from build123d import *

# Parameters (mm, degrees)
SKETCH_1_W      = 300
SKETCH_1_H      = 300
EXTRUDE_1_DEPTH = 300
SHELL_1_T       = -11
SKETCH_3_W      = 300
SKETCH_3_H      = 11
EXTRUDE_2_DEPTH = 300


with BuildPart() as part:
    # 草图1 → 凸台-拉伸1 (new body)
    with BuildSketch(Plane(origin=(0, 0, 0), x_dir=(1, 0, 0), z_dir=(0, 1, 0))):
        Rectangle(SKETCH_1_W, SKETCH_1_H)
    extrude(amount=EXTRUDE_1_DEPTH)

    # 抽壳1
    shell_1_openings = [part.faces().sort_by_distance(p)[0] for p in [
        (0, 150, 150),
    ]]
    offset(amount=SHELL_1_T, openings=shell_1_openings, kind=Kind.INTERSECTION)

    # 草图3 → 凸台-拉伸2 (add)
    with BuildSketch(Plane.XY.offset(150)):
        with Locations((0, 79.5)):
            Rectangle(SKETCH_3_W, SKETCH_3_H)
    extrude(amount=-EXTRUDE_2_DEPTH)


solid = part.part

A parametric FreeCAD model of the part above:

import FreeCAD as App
import Part
import Sketcher


def faces_at(feature, points):
    """Names of the faces that lie closest to the given points."""
    faces = feature.Shape.Faces
    near = lambda p: min(range(len(faces)), key=lambda i: faces[i].distToShape(Part.Vertex(*p))[0])
    return sorted({f"Face{near(p) + 1}" for p in points})

doc = App.newDocument("Part")
body = doc.addObject("PartDesign::Body", "Body")

sketch1 = body.newObject("Sketcher::SketchObject", "Sketch")
sketch1.AttachmentSupport = (doc.getObject("XZ_Plane"), [""])
sketch1.MapMode = "FlatFace"
sketch1.addGeometry(Part.LineSegment(App.Vector(-150, -150, 0), App.Vector(-150, 150, 0)), False)
sketch1.addGeometry(Part.LineSegment(App.Vector(-150, 150, 0), App.Vector(150, 150, 0)), False)
sketch1.addGeometry(Part.LineSegment(App.Vector(150, 150, 0), App.Vector(150, -150, 0)), False)
sketch1.addGeometry(Part.LineSegment(App.Vector(150, -150, 0), App.Vector(-150, -150, 0)), False)
sketch1.addConstraint(Sketcher.Constraint("Coincident", 0, 2, 1, 1))
sketch1.addConstraint(Sketcher.Constraint("Coincident", 1, 2, 2, 1))
sketch1.addConstraint(Sketcher.Constraint("Coincident", 2, 2, 3, 1))
sketch1.addConstraint(Sketcher.Constraint("Coincident", 3, 2, 0, 1))
sketch1.addConstraint(Sketcher.Constraint("Vertical", 0))
sketch1.addConstraint(Sketcher.Constraint("Horizontal", 1))
sketch1.addConstraint(Sketcher.Constraint("Vertical", 2))
sketch1.addConstraint(Sketcher.Constraint("Horizontal", 3))
sketch1.addConstraint(Sketcher.Constraint("Symmetric", 0, 2, 2, 2, -1, 1))
sketch1.addConstraint(Sketcher.Constraint("Equal", 3, 0))
sketch1.addConstraint(Sketcher.Constraint("DistanceX", 1, 1, 1, 2, 300.0))
pad1 = body.newObject("PartDesign::Pad", "Pad")
pad1.Profile = sketch1
pad1.Length = 300
pad1.Reversed = True
doc.recompute()

thickness = body.newObject("PartDesign::Thickness", "Thickness")
thickness.Base = (pad1, faces_at(pad1, [(0, 150, 150)]))
thickness.Value = 11
thickness.Reversed = True
thickness.Join = "Intersection"

sketch2 = body.newObject("Sketcher::SketchObject", "Sketch001")
sketch2.AttachmentSupport = (doc.getObject("XY_Plane"), [""])
sketch2.MapMode = "FlatFace"
sketch2.AttachmentOffset = App.Placement(App.Vector(0, 0, 150), App.Rotation())
sketch2.addGeometry(Part.LineSegment(App.Vector(-150, 85, 0), App.Vector(-150, 74, 0)), False)
sketch2.addGeometry(Part.LineSegment(App.Vector(-150, 74, 0), App.Vector(150, 74, 0)), False)
sketch2.addGeometry(Part.LineSegment(App.Vector(150, 74, 0), App.Vector(150, 85, 0)), False)
sketch2.addGeometry(Part.LineSegment(App.Vector(150, 85, 0), App.Vector(-150, 85, 0)), False)
sketch2.addConstraint(Sketcher.Constraint("Coincident", 0, 2, 1, 1))
sketch2.addConstraint(Sketcher.Constraint("Coincident", 1, 2, 2, 1))
sketch2.addConstraint(Sketcher.Constraint("Coincident", 2, 2, 3, 1))
sketch2.addConstraint(Sketcher.Constraint("Coincident", 3, 2, 0, 1))
sketch2.addConstraint(Sketcher.Constraint("Vertical", 0))
sketch2.addConstraint(Sketcher.Constraint("Horizontal", 1))
sketch2.addConstraint(Sketcher.Constraint("Vertical", 2))
sketch2.addConstraint(Sketcher.Constraint("Horizontal", 3))
sketch2.addConstraint(Sketcher.Constraint("DistanceX", 1, 1, 1, 2, 300.0))
sketch2.addConstraint(Sketcher.Constraint("DistanceY", 0, 2, 0, 1, 11.0))
sketch2.addConstraint(Sketcher.Constraint("DistanceX", 0, 2, -1, 1, 150.0))
sketch2.addConstraint(Sketcher.Constraint("DistanceY", -1, 1, 0, 2, 74.0))
pad2 = body.newObject("PartDesign::Pad", "Pad001")
pad2.Profile = sketch2
pad2.Length = 300
pad2.Reversed = True

doc.recompute()
